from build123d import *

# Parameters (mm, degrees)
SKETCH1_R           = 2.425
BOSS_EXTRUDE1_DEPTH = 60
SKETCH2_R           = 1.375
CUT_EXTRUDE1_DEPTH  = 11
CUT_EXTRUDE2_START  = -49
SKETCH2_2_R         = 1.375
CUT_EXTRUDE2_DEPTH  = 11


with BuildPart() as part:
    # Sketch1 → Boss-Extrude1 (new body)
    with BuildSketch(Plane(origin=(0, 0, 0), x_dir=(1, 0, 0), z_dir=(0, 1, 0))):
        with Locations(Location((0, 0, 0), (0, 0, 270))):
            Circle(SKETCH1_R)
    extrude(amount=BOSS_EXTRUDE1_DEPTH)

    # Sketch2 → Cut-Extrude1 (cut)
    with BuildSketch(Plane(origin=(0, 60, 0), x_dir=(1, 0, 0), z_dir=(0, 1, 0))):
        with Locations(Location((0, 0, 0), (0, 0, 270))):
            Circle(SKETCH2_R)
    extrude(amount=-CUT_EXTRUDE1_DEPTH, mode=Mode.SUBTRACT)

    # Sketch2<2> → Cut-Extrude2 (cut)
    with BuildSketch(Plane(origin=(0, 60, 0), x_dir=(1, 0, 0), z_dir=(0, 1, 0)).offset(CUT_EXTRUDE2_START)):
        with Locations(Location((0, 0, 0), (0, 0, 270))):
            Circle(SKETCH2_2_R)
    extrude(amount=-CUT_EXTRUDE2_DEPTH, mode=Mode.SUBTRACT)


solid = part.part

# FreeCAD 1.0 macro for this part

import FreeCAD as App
import Part
import Sketcher

doc = App.newDocument("Part")
params = doc.addObject("Spreadsheet::Sheet", "Params")
for row, (alias, value) in enumerate([
    ("sketch1_diameter", "4.85 mm"),
    ("pad1_length", "60 mm"),
    ("sketch2_diameter", "2.75 mm"),
    ("pocket1_length", "11 mm"),
    ("sketch3_diameter", "2.75 mm"),
    ("pocket2_length", "11 mm"),
], start=1):
    params.set(f"A{row}", alias)
    params.set(f"B{row}", "=" + value)
    params.setAlias(f"B{row}", alias)

body = doc.addObject("PartDesign::Body", "Body")

# Sketch on XZ plane
sketch1 = doc.addObject("Sketcher::SketchObject", "Sketch")
body.addObject(sketch1)
sketch1.AttachmentSupport = (doc.XZ_Plane, [""])
sketch1.MapMode = "FlatFace"
sketch1.addGeometry(Part.Circle(App.Vector(0, 0, 0), App.Vector(0, 0, 1), 2.4), False)
sketch1.addConstraint(Sketcher.Constraint("Coincident", 0, 3, -1, 1))
sketch1.addConstraint(Sketcher.Constraint("Diameter", 0, 4.85))
sketch1.setExpression("Constraints[1]", "Params.sketch1_diameter")
pad1 = doc.addObject("PartDesign::Pad", "Pad")
body.addObject(pad1)
pad1.Profile = sketch1
pad1.setExpression("Length", "Params.pad1_length")
pad1.Reversed = True

# Sketch on XZ plane
sketch2 = doc.addObject("Sketcher::SketchObject", "Sketch001")
body.addObject(sketch2)
sketch2.AttachmentSupport = (doc.XZ_Plane, [""])
sketch2.MapMode = "FlatFace"
sketch2.AttachmentOffset = App.Placement(App.Vector(0, 0, -60), App.Rotation())
sketch2.addGeometry(Part.Circle(App.Vector(0, 0, 0), App.Vector(0, 0, 1), 1.4), False)
sketch2.addConstraint(Sketcher.Constraint("Coincident", 0, 3, -1, 1))
sketch2.addConstraint(Sketcher.Constraint("Diameter", 0, 2.75))
sketch2.setExpression("Constraints[1]", "Params.sketch2_diameter")
pocket1 = doc.addObject("PartDesign::Pocket", "Pocket")
body.addObject(pocket1)
pocket1.Profile = sketch2
pocket1.setExpression("Length", "Params.pocket1_length")
pocket1.Reversed = True

# Sketch on XZ plane
sketch3 = doc.addObject("Sketcher::SketchObject", "Sketch002")
body.addObject(sketch3)
sketch3.AttachmentSupport = (doc.XZ_Plane, [""])
sketch3.MapMode = "FlatFace"
sketch3.AttachmentOffset = App.Placement(App.Vector(0, 0, -11), App.Rotation())
sketch3.addGeometry(Part.Circle(App.Vector(0, 0, 0), App.Vector(0, 0, 1), 1.4), False)
sketch3.addConstraint(Sketcher.Constraint("Coincident", 0, 3, -1, 1))
sketch3.addConstraint(Sketcher.Constraint("Diameter", 0, 2.75))
sketch3.setExpression("Constraints[1]", "Params.sketch3_diameter")
pocket2 = doc.addObject("PartDesign::Pocket", "Pocket001")
body.addObject(pocket2)
pocket2.Profile = sketch3
pocket2.setExpression("Length", "Params.pocket2_length")
pocket2.Reversed = True

doc.recompute()
